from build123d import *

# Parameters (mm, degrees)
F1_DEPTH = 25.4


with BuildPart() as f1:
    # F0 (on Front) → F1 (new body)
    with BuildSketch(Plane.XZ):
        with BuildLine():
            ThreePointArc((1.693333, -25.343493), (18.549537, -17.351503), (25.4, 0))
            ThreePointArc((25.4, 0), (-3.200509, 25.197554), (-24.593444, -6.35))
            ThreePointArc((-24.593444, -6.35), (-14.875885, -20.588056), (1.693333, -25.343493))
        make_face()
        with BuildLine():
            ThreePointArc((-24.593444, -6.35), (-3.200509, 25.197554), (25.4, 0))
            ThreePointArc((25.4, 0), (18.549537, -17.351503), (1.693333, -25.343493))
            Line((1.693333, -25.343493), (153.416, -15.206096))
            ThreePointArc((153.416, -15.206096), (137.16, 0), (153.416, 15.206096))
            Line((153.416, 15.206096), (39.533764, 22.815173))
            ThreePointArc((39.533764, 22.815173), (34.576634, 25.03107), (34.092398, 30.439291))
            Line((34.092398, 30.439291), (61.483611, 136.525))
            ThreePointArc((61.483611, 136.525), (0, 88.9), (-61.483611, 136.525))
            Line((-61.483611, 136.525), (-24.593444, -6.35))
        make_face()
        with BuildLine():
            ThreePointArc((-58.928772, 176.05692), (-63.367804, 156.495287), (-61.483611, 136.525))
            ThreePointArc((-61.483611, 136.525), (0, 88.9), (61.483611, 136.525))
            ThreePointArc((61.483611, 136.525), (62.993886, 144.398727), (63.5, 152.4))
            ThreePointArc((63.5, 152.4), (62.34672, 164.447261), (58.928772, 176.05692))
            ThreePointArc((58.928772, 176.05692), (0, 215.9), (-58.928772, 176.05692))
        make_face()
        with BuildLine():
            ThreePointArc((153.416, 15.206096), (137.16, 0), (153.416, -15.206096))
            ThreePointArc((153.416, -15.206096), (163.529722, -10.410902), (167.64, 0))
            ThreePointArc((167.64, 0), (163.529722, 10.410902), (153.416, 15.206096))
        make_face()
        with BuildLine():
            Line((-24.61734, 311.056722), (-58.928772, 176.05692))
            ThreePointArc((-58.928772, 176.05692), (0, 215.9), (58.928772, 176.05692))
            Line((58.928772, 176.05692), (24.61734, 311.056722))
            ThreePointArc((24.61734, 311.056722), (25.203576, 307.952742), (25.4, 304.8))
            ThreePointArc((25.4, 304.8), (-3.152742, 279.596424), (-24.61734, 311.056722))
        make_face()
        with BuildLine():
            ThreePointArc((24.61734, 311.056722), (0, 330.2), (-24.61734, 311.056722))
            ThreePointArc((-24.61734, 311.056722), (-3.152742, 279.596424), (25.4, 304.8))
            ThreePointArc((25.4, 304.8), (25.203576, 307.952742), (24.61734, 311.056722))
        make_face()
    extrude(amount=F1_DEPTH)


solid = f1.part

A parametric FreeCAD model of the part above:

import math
import FreeCAD as App
import Part
import Sketcher

V = App.Vector
Q = App.Units.Quantity

doc = App.newDocument("Part")
body = doc.addObject("PartDesign::Body", "Body")

sketch1 = doc.addObject("Sketcher::SketchObject", "Sketch")
body.addObject(sketch1)
sketch1.AttachmentSupport = (doc.XZ_Plane, [""])
sketch1.MapMode = "FlatFace"
sketch1.addGeometry(Part.ArcOfCircle(Part.Circle(V(0, 0, 0), V(0, 0, 1), 25.4), math.radians(-165.522489), math.radians(-86.177447)), False)
sketch1.addGeometry(Part.LineSegment(V(1.693333, -25.343493, 0), V(153.416, -15.206096, 0)), False)
sketch1.addGeometry(Part.ArcOfCircle(Part.Circle(V(152.399999, 0.000001, 0), V(0, 0, 1), 15.240001), math.radians(-86.177441), math.radians(-0.000003)), False)
sketch1.addGeometry(Part.ArcOfCircle(Part.Circle(V(152.399999, -0.000001, 0), V(0, 0, 1), 15.240001), math.radians(0.000003), math.radians(86.177441)), False)
sketch1.addGeometry(Part.LineSegment(V(153.416, 15.206096, 0), V(39.533764, 22.815173, 0)), False)
sketch1.addGeometry(Part.ArcOfCircle(Part.Circle(V(38.943715, 28.147874, 0), V(0, 0, 1), 5.365246), math.radians(154.717285), math.radians(276.313944)), False)
sketch1.addGeometry(Part.LineSegment(V(34.092398, 30.439291, 0), V(61.483611, 136.525, 0)), False)
sketch1.addGeometry(Part.ArcOfCircle(Part.Circle(V(0.000019, 152.399996, 0), V(0, 0, 1), 63.499981), math.radians(-14.477513), math.radians(0.000004)), False)
sketch1.addGeometry(Part.ArcOfCircle(Part.Circle(V(-0.00001, 152.399999, 0), V(0, 0, 1), 63.50001), math.radians(0.000001), math.radians(21.872961)), False)
sketch1.addGeometry(Part.LineSegment(V(58.928772, 176.05692, 0), V(24.61734, 311.056722, 0)), False)
sketch1.addGeometry(Part.ArcOfCircle(Part.Circle(V(0, 304.8, 0), V(0, 0, 1), 25.4), math.radians(14.260307), math.radians(165.739693)), False)
sketch1.addGeometry(Part.LineSegment(V(-24.61734, 311.056722, 0), V(-58.928772, 176.05692, 0)), False)
sketch1.addGeometry(Part.ArcOfCircle(Part.Circle(V(0.000013, 152.399999, 0), V(0, 0, 1), 63.500012), math.radians(158.12704), math.radians(194.477508)), False)
sketch1.addGeometry(Part.LineSegment(V(-61.483611, 136.525, 0), V(-24.593444, -6.35, 0)), False)
sketch1.addConstraint(Sketcher.Constraint("Coincident", 0, 2, 1, 1))
sketch1.addConstraint(Sketcher.Constraint("Coincident", 1, 2, 2, 1))
sketch1.addConstraint(Sketcher.Constraint("Coincident", 2, 2, 3, 1))
sketch1.addConstraint(Sketcher.Constraint("Coincident", 3, 2, 4, 1))
sketch1.addConstraint(Sketcher.Constraint("Coincident", 4, 2, 5, 2))
sketch1.addConstraint(Sketcher.Constraint("Coincident", 5, 1, 6, 1))
sketch1.addConstraint(Sketcher.Constraint("Coincident", 6, 2, 7, 1))
sketch1.addConstraint(Sketcher.Constraint("Coincident", 7, 2, 8, 1))
sketch1.addConstraint(Sketcher.Constraint("Coincident", 8, 2, 9, 1))
sketch1.addConstraint(Sketcher.Constraint("Coincident", 9, 2, 10, 1))
sketch1.addConstraint(Sketcher.Constraint("Coincident", 10, 2, 11, 1))
sketch1.addConstraint(Sketcher.Constraint("Coincident", 11, 2, 12, 1))
sketch1.addConstraint(Sketcher.Constraint("Coincident", 12, 2, 13, 1))
sketch1.addConstraint(Sketcher.Constraint("Coincident", 13, 2, 0, 1))
sketch1.addConstraint(Sketcher.Constraint("Coincident", 0, 3, -1, 1))
sketch1.addConstraint(Sketcher.Constraint("Coincident", 3, 3, 2, 3))
sketch1.addConstraint(Sketcher.Constraint("Coincident", 12, 3, 7, 3))
sketch1.addConstraint(Sketcher.Constraint("PointOnObject", 2, 3, -1))
sketch1.addConstraint(Sketcher.Constraint("PointOnObject", 10, 3, -2))
sketch1.addConstraint(Sketcher.Constraint("PointOnObject", 2, 2, -1))
sketch1.addConstraint(Sketcher.Constraint("Radius", 0, Q("1 in")))
sketch1.addConstraint(Sketcher.Constraint("Radius", 10, Q("1 in")))
sketch1.addConstraint(Sketcher.Constraint("Radius", 2, Q("0.6000001 in")))
sketch1.addConstraint(Sketcher.Constraint("DistanceX", -1, 1, 2, 3, Q("5.9999999 in")))
sketch1.addConstraint(Sketcher.Constraint("DistanceY", -1, 1, 7, 3, Q("5.9999998 in")))
sketch1.addConstraint(Sketcher.Constraint("DistanceY", -1, 1, 8, 3, Q("5.9999999 in")))
sketch1.addConstraint(Sketcher.Constraint("DistanceY", -1, 1, 10, 3, Q("12 in")))
sketch1.addConstraint(Sketcher.Constraint("DistanceY", -1, 1, 7, 2, Q("6 in")))
sketch1.addConstraint(Sketcher.Constraint("DistanceX", -1, 1, 7, 2, Q("2.5 in")))
sketch1.addConstraint(Sketcher.Constraint("DistanceX", -1, 1, 1, 2, Q("6.04 in")))
sketch1.addConstraint(Sketcher.Constraint("DistanceX", -1, 1, 3, 2, Q("6.04 in")))
sketch1.addConstraint(Sketcher.Constraint("DistanceY", 13, 2, -1, 1, Q("0.25 in")))
sketch1.addConstraint(Sketcher.Constraint("DistanceY", -1, 1, 6, 2, Q("5.375 in")))
sketch1.addConstraint(Sketcher.Constraint("DistanceY", -1, 1, 12, 2, Q("5.375 in")))
sketch1.addConstraint(Sketcher.Constraint("Radius", 7, Q("63.499981 mm")))
sketch1.addConstraint(Sketcher.Constraint("Radius", 8, Q("63.50001 mm")))
sketch1.addConstraint(Sketcher.Constraint("Radius", 5, Q("5.365246 mm")))
sketch1.addConstraint(Sketcher.Constraint("Radius", 12, Q("63.500012 mm")))
sketch1.addConstraint(Sketcher.Constraint("DistanceX", 12, 3, 5, 3, Q("38.943702 mm")))
sketch1.addConstraint(Sketcher.Constraint("DistanceY", 4, 2, 5, 3, Q("5.332701 mm")))
sketch1.addConstraint(Sketcher.Constraint("DistanceY", 8, 2, 10, 2, Q("134.999802 mm")))
sketch1.addConstraint(Sketcher.Constraint("Distance", 6, Q("109.564849 mm")))
sketch1.addConstraint(Sketcher.Constraint("DistanceY", -1, 1, 5, 1, Q("30.439291 mm")))
sketch1.addConstraint(Sketcher.Constraint("DistanceX", -1, 1, 8, 2, Q("58.928772 mm")))
sketch1.addConstraint(Sketcher.Constraint("DistanceX", -1, 1, 9, 2, Q("24.61734 mm")))
sketch1.addConstraint(Sketcher.Constraint("DistanceY", -1, 1, 11, 2, Q("176.05692 mm")))
sketch1.addConstraint(Sketcher.Constraint("DistanceX", 0, 2, 5, 3, Q("37.250382 mm")))
pad1 = doc.addObject("PartDesign::Pad", "Pad")
body.addObject(pad1)
pad1.Profile = sketch1
pad1.Length = Q("1 in")

doc.recompute()
